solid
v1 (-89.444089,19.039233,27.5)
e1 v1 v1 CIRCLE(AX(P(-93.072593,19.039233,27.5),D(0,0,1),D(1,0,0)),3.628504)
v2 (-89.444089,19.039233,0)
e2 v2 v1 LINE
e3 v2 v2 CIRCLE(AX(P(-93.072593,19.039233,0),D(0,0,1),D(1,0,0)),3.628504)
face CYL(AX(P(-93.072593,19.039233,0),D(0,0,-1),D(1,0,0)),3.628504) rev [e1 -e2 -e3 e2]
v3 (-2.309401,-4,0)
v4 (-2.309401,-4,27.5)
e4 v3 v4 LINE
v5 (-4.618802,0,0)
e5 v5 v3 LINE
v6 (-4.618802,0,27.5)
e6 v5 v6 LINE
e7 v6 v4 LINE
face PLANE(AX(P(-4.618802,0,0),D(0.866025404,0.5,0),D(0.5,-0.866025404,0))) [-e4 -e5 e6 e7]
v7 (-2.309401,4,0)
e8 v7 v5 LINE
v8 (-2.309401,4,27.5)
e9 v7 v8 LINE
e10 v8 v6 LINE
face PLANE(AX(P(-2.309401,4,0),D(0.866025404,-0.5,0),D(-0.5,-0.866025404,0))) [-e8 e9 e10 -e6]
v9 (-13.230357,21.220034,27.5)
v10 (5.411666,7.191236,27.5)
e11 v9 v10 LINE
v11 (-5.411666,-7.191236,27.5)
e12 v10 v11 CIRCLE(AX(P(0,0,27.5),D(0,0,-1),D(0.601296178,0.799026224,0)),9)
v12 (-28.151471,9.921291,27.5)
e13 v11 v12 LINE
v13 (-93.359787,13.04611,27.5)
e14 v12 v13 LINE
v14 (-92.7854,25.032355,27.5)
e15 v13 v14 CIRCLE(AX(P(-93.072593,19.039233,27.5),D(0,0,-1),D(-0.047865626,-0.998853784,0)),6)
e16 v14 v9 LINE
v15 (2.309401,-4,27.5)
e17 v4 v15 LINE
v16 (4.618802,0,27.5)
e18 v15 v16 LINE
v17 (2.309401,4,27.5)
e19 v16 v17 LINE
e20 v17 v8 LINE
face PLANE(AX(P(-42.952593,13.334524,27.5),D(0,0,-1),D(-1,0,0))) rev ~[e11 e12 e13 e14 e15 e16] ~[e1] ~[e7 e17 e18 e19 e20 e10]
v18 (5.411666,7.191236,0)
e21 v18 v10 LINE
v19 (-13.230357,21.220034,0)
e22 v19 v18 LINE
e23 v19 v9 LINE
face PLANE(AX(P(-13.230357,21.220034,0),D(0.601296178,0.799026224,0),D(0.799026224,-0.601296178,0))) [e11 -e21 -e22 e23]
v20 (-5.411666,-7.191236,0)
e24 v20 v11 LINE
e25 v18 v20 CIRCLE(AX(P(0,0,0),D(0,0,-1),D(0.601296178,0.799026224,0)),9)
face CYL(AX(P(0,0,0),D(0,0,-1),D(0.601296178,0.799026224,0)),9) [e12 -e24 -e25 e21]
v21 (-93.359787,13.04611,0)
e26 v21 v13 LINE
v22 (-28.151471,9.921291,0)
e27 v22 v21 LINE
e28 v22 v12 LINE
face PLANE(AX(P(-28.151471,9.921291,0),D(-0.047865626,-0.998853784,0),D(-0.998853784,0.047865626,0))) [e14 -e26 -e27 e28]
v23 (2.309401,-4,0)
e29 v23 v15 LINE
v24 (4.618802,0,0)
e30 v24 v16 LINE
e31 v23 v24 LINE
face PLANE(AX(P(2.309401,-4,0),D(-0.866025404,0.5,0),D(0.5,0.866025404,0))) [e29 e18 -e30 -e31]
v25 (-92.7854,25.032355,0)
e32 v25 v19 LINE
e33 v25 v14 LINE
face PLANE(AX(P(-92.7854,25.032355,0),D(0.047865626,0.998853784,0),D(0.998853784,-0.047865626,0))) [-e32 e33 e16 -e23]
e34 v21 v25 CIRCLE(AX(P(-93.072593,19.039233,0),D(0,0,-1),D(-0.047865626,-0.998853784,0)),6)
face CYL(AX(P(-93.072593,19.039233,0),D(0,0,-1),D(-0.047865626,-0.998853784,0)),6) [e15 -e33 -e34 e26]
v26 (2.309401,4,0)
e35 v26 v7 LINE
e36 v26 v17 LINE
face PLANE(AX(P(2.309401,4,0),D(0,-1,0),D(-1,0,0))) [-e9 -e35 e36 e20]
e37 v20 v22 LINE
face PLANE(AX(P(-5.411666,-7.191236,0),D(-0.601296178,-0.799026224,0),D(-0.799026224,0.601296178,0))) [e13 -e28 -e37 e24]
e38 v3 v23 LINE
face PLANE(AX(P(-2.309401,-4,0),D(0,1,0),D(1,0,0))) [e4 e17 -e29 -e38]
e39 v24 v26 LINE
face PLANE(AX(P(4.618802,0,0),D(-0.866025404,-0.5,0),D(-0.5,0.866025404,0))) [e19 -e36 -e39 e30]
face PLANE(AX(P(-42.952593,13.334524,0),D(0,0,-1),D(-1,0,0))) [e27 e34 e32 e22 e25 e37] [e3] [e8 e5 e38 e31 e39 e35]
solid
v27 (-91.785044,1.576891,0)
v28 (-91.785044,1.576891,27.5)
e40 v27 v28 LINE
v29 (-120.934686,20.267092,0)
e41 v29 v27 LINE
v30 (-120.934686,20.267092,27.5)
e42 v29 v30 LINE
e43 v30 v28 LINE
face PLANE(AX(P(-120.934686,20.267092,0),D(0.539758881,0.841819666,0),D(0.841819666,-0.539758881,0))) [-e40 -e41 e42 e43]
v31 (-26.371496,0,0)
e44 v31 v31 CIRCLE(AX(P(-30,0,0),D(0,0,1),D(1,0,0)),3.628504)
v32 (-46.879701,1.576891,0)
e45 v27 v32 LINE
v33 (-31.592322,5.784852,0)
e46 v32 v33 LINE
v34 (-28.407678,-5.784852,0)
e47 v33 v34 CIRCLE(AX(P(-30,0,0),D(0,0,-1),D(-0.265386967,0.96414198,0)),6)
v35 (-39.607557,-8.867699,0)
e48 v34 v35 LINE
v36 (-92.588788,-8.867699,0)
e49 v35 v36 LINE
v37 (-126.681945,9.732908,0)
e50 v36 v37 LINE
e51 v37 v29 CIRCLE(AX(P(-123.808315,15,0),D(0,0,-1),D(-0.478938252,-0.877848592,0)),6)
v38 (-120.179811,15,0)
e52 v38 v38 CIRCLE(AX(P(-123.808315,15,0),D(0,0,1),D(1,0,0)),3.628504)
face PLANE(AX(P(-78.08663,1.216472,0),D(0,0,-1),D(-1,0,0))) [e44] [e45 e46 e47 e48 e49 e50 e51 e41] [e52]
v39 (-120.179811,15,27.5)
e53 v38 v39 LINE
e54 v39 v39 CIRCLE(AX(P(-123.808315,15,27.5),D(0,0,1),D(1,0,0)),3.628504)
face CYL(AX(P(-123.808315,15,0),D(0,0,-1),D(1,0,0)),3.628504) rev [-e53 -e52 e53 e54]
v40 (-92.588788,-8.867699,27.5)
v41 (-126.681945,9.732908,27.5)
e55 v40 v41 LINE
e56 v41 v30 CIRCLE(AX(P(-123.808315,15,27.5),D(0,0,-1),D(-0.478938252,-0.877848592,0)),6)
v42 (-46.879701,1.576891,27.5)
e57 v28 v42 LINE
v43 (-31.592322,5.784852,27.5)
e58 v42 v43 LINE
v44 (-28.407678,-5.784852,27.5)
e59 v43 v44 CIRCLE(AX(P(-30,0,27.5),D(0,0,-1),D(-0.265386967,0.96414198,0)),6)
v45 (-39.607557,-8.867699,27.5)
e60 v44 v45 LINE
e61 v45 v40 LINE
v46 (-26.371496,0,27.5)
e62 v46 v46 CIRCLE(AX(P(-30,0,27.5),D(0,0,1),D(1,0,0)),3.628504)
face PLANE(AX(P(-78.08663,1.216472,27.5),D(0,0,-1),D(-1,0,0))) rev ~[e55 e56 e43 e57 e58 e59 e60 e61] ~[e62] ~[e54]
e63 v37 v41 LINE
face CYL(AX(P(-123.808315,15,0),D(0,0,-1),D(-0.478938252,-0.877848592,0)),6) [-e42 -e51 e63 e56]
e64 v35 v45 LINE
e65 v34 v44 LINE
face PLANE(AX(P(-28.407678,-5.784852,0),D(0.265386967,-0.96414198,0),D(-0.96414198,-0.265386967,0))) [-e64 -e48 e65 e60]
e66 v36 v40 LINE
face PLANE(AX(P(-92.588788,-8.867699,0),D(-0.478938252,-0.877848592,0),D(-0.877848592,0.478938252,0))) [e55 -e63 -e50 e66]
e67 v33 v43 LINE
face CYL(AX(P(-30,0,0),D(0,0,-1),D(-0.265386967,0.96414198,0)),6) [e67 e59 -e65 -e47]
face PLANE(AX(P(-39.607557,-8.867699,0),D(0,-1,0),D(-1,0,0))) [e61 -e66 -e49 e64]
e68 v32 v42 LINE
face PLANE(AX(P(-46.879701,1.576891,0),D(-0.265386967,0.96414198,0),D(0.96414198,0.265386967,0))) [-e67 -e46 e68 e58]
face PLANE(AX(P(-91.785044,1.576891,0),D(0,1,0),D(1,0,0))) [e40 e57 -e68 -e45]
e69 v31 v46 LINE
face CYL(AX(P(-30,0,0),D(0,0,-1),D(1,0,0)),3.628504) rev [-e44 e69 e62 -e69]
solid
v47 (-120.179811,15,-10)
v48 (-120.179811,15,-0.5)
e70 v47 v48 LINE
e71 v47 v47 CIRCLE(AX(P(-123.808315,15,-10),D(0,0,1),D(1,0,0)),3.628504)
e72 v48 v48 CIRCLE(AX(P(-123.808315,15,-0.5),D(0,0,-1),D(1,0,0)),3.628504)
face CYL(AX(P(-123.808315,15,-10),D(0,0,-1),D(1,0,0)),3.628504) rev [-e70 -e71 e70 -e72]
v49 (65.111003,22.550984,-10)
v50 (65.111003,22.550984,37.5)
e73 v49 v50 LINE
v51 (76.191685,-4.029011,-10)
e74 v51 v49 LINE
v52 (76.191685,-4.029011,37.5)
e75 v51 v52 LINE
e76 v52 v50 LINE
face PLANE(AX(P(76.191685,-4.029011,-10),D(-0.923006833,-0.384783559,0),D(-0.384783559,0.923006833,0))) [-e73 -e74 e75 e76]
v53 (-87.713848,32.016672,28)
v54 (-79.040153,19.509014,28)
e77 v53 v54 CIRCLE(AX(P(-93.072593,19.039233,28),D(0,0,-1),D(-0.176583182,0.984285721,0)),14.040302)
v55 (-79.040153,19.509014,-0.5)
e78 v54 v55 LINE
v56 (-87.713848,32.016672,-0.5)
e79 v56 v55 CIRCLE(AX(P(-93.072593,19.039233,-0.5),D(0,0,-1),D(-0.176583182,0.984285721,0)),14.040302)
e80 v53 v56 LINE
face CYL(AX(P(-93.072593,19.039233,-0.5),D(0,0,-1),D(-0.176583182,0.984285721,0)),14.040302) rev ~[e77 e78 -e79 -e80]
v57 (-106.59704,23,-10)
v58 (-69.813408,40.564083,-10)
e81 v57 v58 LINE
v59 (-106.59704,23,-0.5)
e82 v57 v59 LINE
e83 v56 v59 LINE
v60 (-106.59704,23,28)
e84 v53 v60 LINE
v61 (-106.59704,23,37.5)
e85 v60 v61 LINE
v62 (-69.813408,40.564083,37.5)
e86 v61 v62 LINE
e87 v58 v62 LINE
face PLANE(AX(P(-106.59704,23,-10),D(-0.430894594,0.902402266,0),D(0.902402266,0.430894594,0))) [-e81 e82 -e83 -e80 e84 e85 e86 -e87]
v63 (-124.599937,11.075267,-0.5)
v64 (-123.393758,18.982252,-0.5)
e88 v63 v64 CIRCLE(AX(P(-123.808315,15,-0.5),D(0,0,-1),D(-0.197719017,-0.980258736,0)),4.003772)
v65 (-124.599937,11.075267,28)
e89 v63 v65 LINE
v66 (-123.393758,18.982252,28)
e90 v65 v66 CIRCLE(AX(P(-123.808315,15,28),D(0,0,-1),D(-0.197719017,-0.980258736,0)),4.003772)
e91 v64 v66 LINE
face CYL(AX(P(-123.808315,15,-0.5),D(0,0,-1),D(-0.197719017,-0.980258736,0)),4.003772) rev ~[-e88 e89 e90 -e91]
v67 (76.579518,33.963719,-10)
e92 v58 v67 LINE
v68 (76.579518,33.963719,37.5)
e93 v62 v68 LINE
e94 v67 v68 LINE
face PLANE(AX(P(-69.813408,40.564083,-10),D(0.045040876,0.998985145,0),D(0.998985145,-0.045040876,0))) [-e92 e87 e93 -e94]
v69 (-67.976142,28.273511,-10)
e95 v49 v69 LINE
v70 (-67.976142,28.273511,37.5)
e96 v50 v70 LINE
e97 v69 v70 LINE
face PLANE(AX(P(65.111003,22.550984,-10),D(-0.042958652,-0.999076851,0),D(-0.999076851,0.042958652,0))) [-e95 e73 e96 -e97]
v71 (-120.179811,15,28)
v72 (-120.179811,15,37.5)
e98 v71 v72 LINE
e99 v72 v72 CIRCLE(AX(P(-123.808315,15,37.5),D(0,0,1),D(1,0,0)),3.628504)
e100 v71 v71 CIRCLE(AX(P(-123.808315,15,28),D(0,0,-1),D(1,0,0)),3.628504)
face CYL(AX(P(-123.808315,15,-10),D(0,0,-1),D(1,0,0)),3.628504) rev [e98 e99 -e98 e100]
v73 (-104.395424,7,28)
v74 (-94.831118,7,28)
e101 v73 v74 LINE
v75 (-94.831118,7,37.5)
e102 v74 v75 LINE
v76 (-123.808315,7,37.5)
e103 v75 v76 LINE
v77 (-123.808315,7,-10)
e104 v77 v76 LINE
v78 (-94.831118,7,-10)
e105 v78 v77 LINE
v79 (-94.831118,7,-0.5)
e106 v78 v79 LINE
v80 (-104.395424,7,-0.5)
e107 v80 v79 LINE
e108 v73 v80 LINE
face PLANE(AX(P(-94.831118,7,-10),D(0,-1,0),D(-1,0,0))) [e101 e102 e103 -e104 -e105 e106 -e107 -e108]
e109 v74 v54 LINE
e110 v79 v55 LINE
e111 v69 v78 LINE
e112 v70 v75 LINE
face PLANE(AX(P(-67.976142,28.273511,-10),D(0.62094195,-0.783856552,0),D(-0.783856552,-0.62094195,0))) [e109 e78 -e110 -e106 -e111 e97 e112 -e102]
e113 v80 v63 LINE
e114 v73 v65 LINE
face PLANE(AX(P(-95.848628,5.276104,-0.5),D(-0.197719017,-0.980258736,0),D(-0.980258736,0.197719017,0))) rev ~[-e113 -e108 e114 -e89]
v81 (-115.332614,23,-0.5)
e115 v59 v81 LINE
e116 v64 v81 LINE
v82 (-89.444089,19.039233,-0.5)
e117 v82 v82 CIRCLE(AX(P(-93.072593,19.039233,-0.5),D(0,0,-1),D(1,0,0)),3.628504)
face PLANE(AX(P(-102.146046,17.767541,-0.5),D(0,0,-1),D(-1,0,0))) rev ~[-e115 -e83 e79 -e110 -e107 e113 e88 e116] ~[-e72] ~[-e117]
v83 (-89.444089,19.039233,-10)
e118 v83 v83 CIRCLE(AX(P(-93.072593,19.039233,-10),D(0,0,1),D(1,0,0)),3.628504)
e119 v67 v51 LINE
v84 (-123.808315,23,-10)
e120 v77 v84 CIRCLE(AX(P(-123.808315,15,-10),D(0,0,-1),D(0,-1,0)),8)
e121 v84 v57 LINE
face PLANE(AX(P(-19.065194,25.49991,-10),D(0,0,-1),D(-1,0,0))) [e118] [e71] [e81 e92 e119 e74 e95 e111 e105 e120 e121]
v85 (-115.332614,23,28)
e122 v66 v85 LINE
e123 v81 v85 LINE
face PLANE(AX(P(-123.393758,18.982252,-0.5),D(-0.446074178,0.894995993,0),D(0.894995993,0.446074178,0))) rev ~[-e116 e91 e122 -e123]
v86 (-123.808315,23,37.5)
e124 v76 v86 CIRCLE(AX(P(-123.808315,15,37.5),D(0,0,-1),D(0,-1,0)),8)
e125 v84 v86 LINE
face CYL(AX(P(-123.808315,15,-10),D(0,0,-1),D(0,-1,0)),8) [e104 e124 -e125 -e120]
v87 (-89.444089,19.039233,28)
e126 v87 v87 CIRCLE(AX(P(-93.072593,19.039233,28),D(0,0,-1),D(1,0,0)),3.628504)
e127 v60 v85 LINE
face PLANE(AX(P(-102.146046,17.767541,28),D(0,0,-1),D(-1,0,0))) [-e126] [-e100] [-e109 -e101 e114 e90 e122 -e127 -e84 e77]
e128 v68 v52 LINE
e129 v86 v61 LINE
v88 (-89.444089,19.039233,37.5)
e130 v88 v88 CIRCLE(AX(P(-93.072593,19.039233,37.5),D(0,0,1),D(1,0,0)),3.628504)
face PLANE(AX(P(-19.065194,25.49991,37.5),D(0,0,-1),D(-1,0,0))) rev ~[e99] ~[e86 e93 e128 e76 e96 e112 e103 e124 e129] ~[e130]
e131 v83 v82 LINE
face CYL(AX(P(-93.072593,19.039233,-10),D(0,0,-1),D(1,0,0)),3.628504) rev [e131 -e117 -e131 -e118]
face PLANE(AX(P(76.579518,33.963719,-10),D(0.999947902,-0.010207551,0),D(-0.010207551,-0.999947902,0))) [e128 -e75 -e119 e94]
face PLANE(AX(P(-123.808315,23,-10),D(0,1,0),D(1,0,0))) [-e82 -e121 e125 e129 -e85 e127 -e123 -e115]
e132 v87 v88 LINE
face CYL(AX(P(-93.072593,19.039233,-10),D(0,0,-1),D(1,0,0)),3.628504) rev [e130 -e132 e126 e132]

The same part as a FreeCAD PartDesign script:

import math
import FreeCAD as App
import Part
import Sketcher
from FreeCAD import Vector
Q = App.Units.Quantity

doc = App.newDocument("Part")
body = doc.addObject("PartDesign::Body", "Body")

# Sketch on XY plane
sketch1 = body.newObject("Sketcher::SketchObject", "Sketch")
sketch1.AttachmentSupport = (doc.getObject("XY_Plane"), [""])
sketch1.MapMode = "FlatFace"
sketch1.addGeometry([
    Part.LineSegment(Vector(-91.8, 1.6, 0), Vector(-120.9, 20.3, 0)),  # 0
    Part.ArcOfCircle(Part.Circle(Vector(-123.8, 15, 0), Vector(0, 0, 1), 6), math.radians(61), math.radians(241)),  # 1
    Part.LineSegment(Vector(-126.7, 9.7, 0), Vector(-92.6, -8.9, 0)),  # 2
    Part.LineSegment(Vector(-92.6, -8.9, 0), Vector(-39.6, -8.9, 0)),  # 3
    Part.LineSegment(Vector(-39.6, -8.9, 0), Vector(-28.4, -5.8, 0)),  # 4
    Part.ArcOfCircle(Part.Circle(Vector(-30, 0, 0), Vector(0, 0, 1), 6), math.radians(-75), math.radians(105)),  # 5
    Part.LineSegment(Vector(-31.6, 5.8, 0), Vector(-46.9, 1.6, 0)),  # 6
    Part.LineSegment(Vector(-46.9, 1.6, 0), Vector(-91.8, 1.6, 0)),  # 7
    Part.Circle(Vector(-30, 0, 0), Vector(0, 0, 1), 3.6),  # 8
    Part.Circle(Vector(-123.8, 15, 0), Vector(0, 0, 1), 3.6),  # 9
], False)
sketch1.addConstraint([
    Sketcher.Constraint("Coincident", 0, 2, 1, 1),
    Sketcher.Constraint("Tangent", 1, 2, 2, 1),
    Sketcher.Constraint("Coincident", 2, 2, 3, 1),
    Sketcher.Constraint("Coincident", 3, 2, 4, 1),
    Sketcher.Constraint("Tangent", 4, 2, 5, 1),
    Sketcher.Constraint("Tangent", 5, 2, 6, 1),
    Sketcher.Constraint("Coincident", 6, 2, 7, 1),
    Sketcher.Constraint("Coincident", 7, 2, 0, 1),
    Sketcher.Constraint("Horizontal", 3),
    Sketcher.Constraint("Horizontal", 7),
    Sketcher.Constraint("Coincident", 8, 3, 5, 3),
    Sketcher.Constraint("Coincident", 9, 3, 1, 3),
    Sketcher.Constraint("Equal", 1, 5),
    Sketcher.Constraint("Equal", 8, 9),
    Sketcher.Constraint("PointOnObject", 5, 3, -1),
    Sketcher.Constraint("Parallel", 4, 6),
    Sketcher.Constraint("Radius", 1, 6.0),
    Sketcher.Constraint("DistanceY", -1, 1, 1, 3, 15.0),
    Sketcher.Constraint("DistanceX", 5, 3, -1, 1, 30.0),
    Sketcher.Constraint("Diameter", 8, 7.257008),
    Sketcher.Constraint("DistanceX", 3, 1, 3, 2, 52.981231),
    Sketcher.Constraint("DistanceY", 2, 2, -1, 1, 8.867699),
    Sketcher.Constraint("DistanceX", 6, 2, -1, 1, 46.879701),
    Sketcher.Constraint("DistanceY", 7, 2, 0, 2, 18.6902),
    Sketcher.Constraint("DistanceX", 1, 2, 7, 2, 34.896901),
    Sketcher.Constraint("Distance", 2, 38.837172),
    Sketcher.Constraint("Distance", 4, 11.616421),
])
pad1 = body.newObject("PartDesign::Pad", "Pad")
pad1.Profile = sketch1
pad1.Length = 27.5
body2 = doc.addObject("PartDesign::Body", "Body001")

# Sketch on XY plane
sketch2 = body2.newObject("Sketcher::SketchObject", "Sketch001")
sketch2.AttachmentSupport = (doc.getObject("XY_Plane001"), [""])
sketch2.MapMode = "FlatFace"
sketch2.addGeometry([
    Part.LineSegment(Vector(-28.2, 9.9, 0), Vector(-5.4, -7.2, 0)),  # 0
    Part.ArcOfCircle(Part.Circle(Vector(0, 0, 0), Vector(0, 0, 1), 9), math.radians(-127), math.radians(53)),  # 1
    Part.LineSegment(Vector(5.4, 7.2, 0), Vector(-13.2, 21.2, 0)),  # 2
    Part.LineSegment(Vector(-13.2, 21.2, 0), Vector(-92.8, 25, 0)),  # 3
    Part.ArcOfCircle(Part.Circle(Vector(-93.1, 19, 0), Vector(0, 0, 1), 6), math.radians(87), math.radians(267)),  # 4
    Part.LineSegment(Vector(-93.4, 13, 0), Vector(-28.2, 9.9, 0)),  # 5
    Part.LineSegment(Vector(4.6, 0, 0), Vector(2.3, -4, 0)),  # 6
    Part.LineSegment(Vector(2.3, -4, 0), Vector(-2.3, -4, 0)),  # 7
    Part.LineSegment(Vector(-2.3, -4, 0), Vector(-4.6, 0, 0)),  # 8
    Part.LineSegment(Vector(-4.6, 0, 0), Vector(-2.3, 4, 0)),  # 9
    Part.LineSegment(Vector(-2.3, 4, 0), Vector(2.3, 4, 0)),  # 10
    Part.LineSegment(Vector(2.3, 4, 0), Vector(4.6, 0, 0)),  # 11
    Part.Circle(Vector(-93.1, 19, 0), Vector(0, 0, 1), 3.6),  # 12
], False)
sketch2.addConstraint([
    Sketcher.Constraint("Tangent", 0, 2, 1, 1),
    Sketcher.Constraint("Tangent", 1, 2, 2, 1),
    Sketcher.Constraint("Coincident", 2, 2, 3, 1),
    Sketcher.Constraint("Tangent", 3, 2, 4, 1),
    Sketcher.Constraint("Tangent", 4, 2, 5, 1),
    Sketcher.Constraint("Coincident", 5, 2, 0, 1),
    Sketcher.Constraint("Coincident", 6, 2, 7, 1),
    Sketcher.Constraint("Coincident", 7, 2, 8, 1),
    Sketcher.Constraint("Coincident", 8, 2, 9, 1),
    Sketcher.Constraint("Coincident", 9, 2, 10, 1),
    Sketcher.Constraint("Coincident", 10, 2, 11, 1),
    Sketcher.Constraint("Coincident", 11, 2, 6, 1),
    Sketcher.Constraint("Horizontal", 7),
    Sketcher.Constraint("Horizontal", 10),
    Sketcher.Constraint("Coincident", 1, 3, -1, 1),
    Sketcher.Constraint("Coincident", 12, 3, 4, 3),
    Sketcher.Constraint("Symmetric", 6, 2, 9, 2, -1, 1),
    Sketcher.Constraint("Symmetric", 8, 2, 11, 2, -1, 1),
    Sketcher.Constraint("PointOnObject", 8, 2, -1),
    Sketcher.Constraint("Parallel", 0, 2),
    Sketcher.Constraint("Parallel", 3, 5),
    Sketcher.Constraint("Parallel", 8, 11),
    Sketcher.Constraint("Vertical", 7, 2, 9, 2),
    Sketcher.Constraint("Radius", 1, 9.0),
    Sketcher.Constraint("Radius", 4, 6.0),
    Sketcher.Constraint("Angle", 6, Q("-120 deg")),
    Sketcher.Constraint("DistanceY", 6, 2, -1, 1, 4.0),
    Sketcher.Constraint("Diameter", 12, 7.257008),
    Sketcher.Constraint("Distance", 0, 28.459398),
    Sketcher.Constraint("DistanceX", 3, 2, -1, 1, 92.7854),
    Sketcher.Constraint("DistanceX", -1, 1, 6, 2, 2.309401),
    Sketcher.Constraint("DistanceY", 4, 3, 2, 2, 2.180801),
    Sketcher.Constraint("DistanceY", -1, 1, 4, 2, 13.04611),
])
pad2 = body2.newObject("PartDesign::Pad", "Pad001")
pad2.Profile = sketch2
pad2.Length = 27.5
body3 = doc.addObject("PartDesign::Body", "Body002")

# Sketch on XY plane
sketch3 = body3.newObject("Sketcher::SketchObject", "Sketch002")
sketch3.AttachmentSupport = (doc.getObject("XY_Plane002"), [""])
sketch3.MapMode = "FlatFace"
sketch3.AttachmentOffset = App.Placement(Vector(0, 0, 13.75), App.Rotation())
sketch3.addGeometry([
    Part.LineSegment(Vector(65.111003, 22.550984, 0), Vector(76.191685, -4.029011, 0)),  # 0
    Part.LineSegment(Vector(76.191685, -4.029011, 0), Vector(76.579518, 33.963719, 0)),  # 1
    Part.LineSegment(Vector(76.579518, 33.963719, 0), Vector(-69.813408, 40.564083, 0)),  # 2
    Part.LineSegment(Vector(-69.813408, 40.564083, 0), Vector(-106.59704, 23, 0)),  # 3
    Part.LineSegment(Vector(-106.59704, 23, 0), Vector(-123.808315, 23, 0)),  # 4
    Part.ArcOfCircle(Part.Circle(Vector(-123.808315, 15, 0), Vector(0, 0, 1), 8), math.radians(90), math.radians(270)),  # 5
    Part.LineSegment(Vector(-123.808315, 7, 0), Vector(-94.831118, 7, 0)),  # 6
    Part.LineSegment(Vector(-94.831118, 7, 0), Vector(-67.976142, 28.273511, 0)),  # 7
    Part.LineSegment(Vector(-67.976142, 28.273511, 0), Vector(65.111003, 22.550984, 0)),  # 8
    Part.Circle(Vector(-123.808315, 15, 0), Vector(0, 0, 1), 3.628504),  # 9
    Part.Circle(Vector(-93.072593, 19.039233, 0), Vector(0, 0, 1), 3.628504),  # 10
], False)
sketch3.addConstraint([
    Sketcher.Constraint("Coincident", 0, 2, 1, 1),
    Sketcher.Constraint("Coincident", 1, 2, 2, 1),
    Sketcher.Constraint("Coincident", 2, 2, 3, 1),
    Sketcher.Constraint("Coincident", 3, 2, 4, 1),
    Sketcher.Constraint("Tangent", 4, 2, 5, 1),
    Sketcher.Constraint("Tangent", 5, 2, 6, 1),
    Sketcher.Constraint("Coincident", 6, 2, 7, 1),
    Sketcher.Constraint("Coincident", 7, 2, 8, 1),
    Sketcher.Constraint("Coincident", 8, 2, 0, 1),
    Sketcher.Constraint("Horizontal", 4),
    Sketcher.Constraint("Horizontal", 6),
    Sketcher.Constraint("Coincident", 9, 3, 5, 3),
    Sketcher.Constraint("Equal", 9, 10),
    Sketcher.Constraint("Radius", 5, 8.0),
    Sketcher.Constraint("DistanceY", -1, 1, 5, 3, 15.0),
    Sketcher.Constraint("DistanceX", 5, 3, 0, 2, 200.0),
    Sketcher.Constraint("Diameter", 9, 7.257008),
    Sketcher.Constraint("Distance", 3, 40.761901),
    Sketcher.Constraint("DistanceY", 8, 2, 2, 2, 18.013099),
    Sketcher.Constraint("Distance", 0, 28.797181),
    Sketcher.Constraint("Distance", 1, 37.994709),
    Sketcher.Constraint("Distance", 8, 133.210118),
    Sketcher.Constraint("DistanceX", 4, 2, 4, 1, 17.211275),
    Sketcher.Constraint("DistanceX", 6, 1, 6, 2, 28.977197),
    Sketcher.Constraint("DistanceY", 0, 2, -1, 1, 4.029011),
    Sketcher.Constraint("DistanceY", -1, 1, 1, 2, 33.963719),
    Sketcher.Constraint("DistanceX", 3, 2, -1, 1, 106.59704),
    Sketcher.Constraint("DistanceY", -1, 1, 7, 2, 28.273511),
    Sketcher.Constraint("DistanceX", 5, 3, 10, 3, 30.735722),
    Sketcher.Constraint("DistanceY", 10, 3, 2, 2, 21.52485),
    Sketcher.Constraint("DistanceX", 3, 2, 2, 2, 36.783632),
])
pad3 = body3.newObject("PartDesign::Pad", "Pad002")
pad3.Profile = sketch3
pad3.Type = "TwoLengths"
pad3.Length = 23.75
pad3.Length2 = 23.75

# Sketch on XY plane
sketch4 = body3.newObject("Sketcher::SketchObject", "Sketch003")
sketch4.AttachmentSupport = (doc.getObject("XY_Plane002"), [""])
sketch4.MapMode = "FlatFace"
sketch4.AttachmentOffset = App.Placement(Vector(0, 0, 13.75), App.Rotation())
sketch4.addGeometry([
    Part.LineSegment(Vector(-95.6, 32.9, 0), Vector(-123.4, 19, 0)),
    Part.ArcOfCircle(Part.Circle(Vector(-123.8, 15, 0), Vector(0, 0, 1), 4), math.radians(84), math.radians(259)),
    Part.LineSegment(Vector(-124.6, 11.1, 0), Vector(-95.8, 5.3, 0)),
    Part.ArcOfCircle(Part.Circle(Vector(-93.1, 19, 0), Vector(0, 0, 1), 14), math.radians(-101), math.radians(100)),
], False)
sketch4.addConstraint([
    Sketcher.Constraint("Coincident", 0, 2, 1, 1),
    Sketcher.Constraint("Tangent", 1, 2, 2, 1),
    Sketcher.Constraint("Tangent", 2, 2, 3, 1),
    Sketcher.Constraint("Coincident", 3, 2, 0, 1),
    Sketcher.Constraint("DistanceY", -1, 1, 1, 3, 15.0),
    Sketcher.Constraint("Radius", 3, 14.040302),
    Sketcher.Constraint("Radius", 1, 4.003772),
    Sketcher.Constraint("DistanceY", -1, 1, 3, 2, 32.858901),
    Sketcher.Constraint("Distance", 0, 31.108389),
    Sketcher.Constraint("DistanceX", 1, 3, 3, 3, 30.735722),
    Sketcher.Constraint("DistanceY", 0, 2, 3, 3, 0.05698),
    Sketcher.Constraint("DistanceX", 1, 3, -1, 1, 123.808315),
])
pocket1 = body3.newObject("PartDesign::Pocket", "Pocket")
pocket1.Profile = sketch4
pocket1.Type = "TwoLengths"
pocket1.Length = 14.25
pocket1.Length2 = 14.25
pocket1.Reversed = True

doc.recompute()
